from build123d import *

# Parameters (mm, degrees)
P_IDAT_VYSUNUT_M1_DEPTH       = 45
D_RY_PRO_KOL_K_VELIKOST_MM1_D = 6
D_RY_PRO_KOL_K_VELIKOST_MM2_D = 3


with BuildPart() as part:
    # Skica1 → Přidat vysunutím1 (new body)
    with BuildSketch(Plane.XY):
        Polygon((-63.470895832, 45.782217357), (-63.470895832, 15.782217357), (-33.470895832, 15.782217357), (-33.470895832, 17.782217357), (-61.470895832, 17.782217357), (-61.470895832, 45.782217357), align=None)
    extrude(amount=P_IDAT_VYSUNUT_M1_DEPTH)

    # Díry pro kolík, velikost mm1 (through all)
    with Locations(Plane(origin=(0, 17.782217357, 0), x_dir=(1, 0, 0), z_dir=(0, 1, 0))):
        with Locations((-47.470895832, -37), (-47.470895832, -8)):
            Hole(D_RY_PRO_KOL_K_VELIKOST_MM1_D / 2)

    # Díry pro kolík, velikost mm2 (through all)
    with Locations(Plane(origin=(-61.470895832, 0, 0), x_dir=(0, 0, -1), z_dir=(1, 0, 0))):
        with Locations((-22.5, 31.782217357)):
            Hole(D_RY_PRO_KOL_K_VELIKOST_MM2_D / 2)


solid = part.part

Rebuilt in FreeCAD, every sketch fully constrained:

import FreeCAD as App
import Part
import Sketcher
Q = App.Units.Quantity

doc = App.newDocument("Part")
params = doc.addObject("Spreadsheet::Sheet", "Params")
for row, (alias, value) in enumerate([
    ("sketch1_width", "30 mm"),
    ("sketch1_width2", "28 mm"),
    ("pad1_length", "45 mm"),
    ("sketch2_diameter", "6 mm"),
    ("hole_diameter", "6 mm"),
    ("sketch3_diameter", "3 mm"),
    ("hole2_diameter", "3 mm"),
], start=1):
    params.set(f"A{row}", alias)
    params.set(f"B{row}", "=" + value)
    params.setAlias(f"B{row}", alias)

body = doc.addObject("PartDesign::Body", "Body")

# Sketch on XY plane
sketch1 = body.newObject("Sketcher::SketchObject", "Sketch")
sketch1.AttachmentSupport = (doc.getObject("XY_Plane"), [""])
sketch1.MapMode = "FlatFace"
sketch1.addGeometry(Part.LineSegment(App.Vector(-63.470896, 45.782217, 0), App.Vector(-63.470896, 15.782217, 0)), False)
sketch1.addGeometry(Part.LineSegment(App.Vector(-63.470896, 15.782217, 0), App.Vector(-33.470896, 15.782217, 0)), False)
sketch1.addGeometry(Part.LineSegment(App.Vector(-33.470896, 15.782217, 0), App.Vector(-33.470896, 17.782217, 0)), False)
sketch1.addGeometry(Part.LineSegment(App.Vector(-33.470896, 17.782217, 0), App.Vector(-61.470896, 17.782217, 0)), False)
sketch1.addGeometry(Part.LineSegment(App.Vector(-61.470896, 17.782217, 0), App.Vector(-61.470896, 45.782217, 0)), False)
sketch1.addGeometry(Part.LineSegment(App.Vector(-61.470896, 45.782217, 0), App.Vector(-63.470896, 45.782217, 0)), False)
sketch1.addConstraint(Sketcher.Constraint("Coincident", 0, 2, 1, 1))
sketch1.addConstraint(Sketcher.Constraint("Coincident", 1, 2, 2, 1))
sketch1.addConstraint(Sketcher.Constraint("Coincident", 2, 2, 3, 1))
sketch1.addConstraint(Sketcher.Constraint("Coincident", 3, 2, 4, 1))
sketch1.addConstraint(Sketcher.Constraint("Coincident", 4, 2, 5, 1))
sketch1.addConstraint(Sketcher.Constraint("Coincident", 5, 2, 0, 1))
sketch1.addConstraint(Sketcher.Constraint("Vertical", 0))
sketch1.addConstraint(Sketcher.Constraint("Horizontal", 1))
sketch1.addConstraint(Sketcher.Constraint("Vertical", 2))
sketch1.addConstraint(Sketcher.Constraint("Horizontal", 3))
sketch1.addConstraint(Sketcher.Constraint("Vertical", 4))
sketch1.addConstraint(Sketcher.Constraint("Horizontal", 5))
sketch1.addConstraint(Sketcher.Constraint("Equal", 1, 0))
sketch1.addConstraint(Sketcher.Constraint("Equal", 5, 2))
sketch1.addConstraint(Sketcher.Constraint("DistanceX", 1, 1, 1, 2, Q("30 mm")))
sketch1.addConstraint(Sketcher.Constraint("DistanceX", 3, 2, 3, 1, Q("28 mm")))
sketch1.addConstraint(Sketcher.Constraint("DistanceX", 0, 2, -1, 1, Q("63.470896 mm")))
sketch1.addConstraint(Sketcher.Constraint("DistanceY", -1, 1, 0, 2, Q("15.782217 mm")))
sketch1.setExpression("Constraints[14]", "Params.sketch1_width")
sketch1.setExpression("Constraints[15]", "Params.sketch1_width2")
pad1 = body.newObject("PartDesign::Pad", "Pad")
pad1.Profile = sketch1
pad1.setExpression("Length", "Params.pad1_length")

# Sketch on XZ plane
sketch2 = body.newObject("Sketcher::SketchObject", "Sketch001")
sketch2.AttachmentSupport = (doc.getObject("XZ_Plane"), [""])
sketch2.MapMode = "FlatFace"
sketch2.AttachmentOffset = App.Placement(App.Vector(0, 0, -17.782217), App.Rotation())
sketch2.addGeometry(Part.Circle(App.Vector(-47.470896, 37, 0), App.Vector(0, 0, 1), 3), False)
sketch2.addGeometry(Part.Circle(App.Vector(-47.470896, 8, 0), App.Vector(0, 0, 1), 3), False)
sketch2.addConstraint(Sketcher.Constraint("Equal", 0, 1))
sketch2.addConstraint(Sketcher.Constraint("Vertical", 0, 3, 1, 3))
sketch2.addConstraint(Sketcher.Constraint("Diameter", 0, Q("6 mm")))
sketch2.addConstraint(Sketcher.Constraint("DistanceY", -1, 1, 0, 3, Q("37 mm")))
sketch2.addConstraint(Sketcher.Constraint("DistanceY", -1, 1, 1, 3, Q("8 mm")))
sketch2.addConstraint(Sketcher.Constraint("DistanceX", 0, 3, -1, 1, Q("47.470896 mm")))
sketch2.setExpression("Constraints[2]", "Params.sketch2_diameter")
doc.recompute()
hole = body.newObject("PartDesign::Hole", "Hole")
hole.Profile = sketch2
hole.ThreadType = "None"
hole.setExpression("Diameter", "Params.hole_diameter")
hole.DepthType = "ThroughAll"
hole.Reversed = True

# Sketch on YZ plane
sketch3 = body.newObject("Sketcher::SketchObject", "Sketch002")
sketch3.AttachmentSupport = (doc.getObject("YZ_Plane"), [""])
sketch3.MapMode = "FlatFace"
sketch3.AttachmentOffset = App.Placement(App.Vector(0, 0, -61.470896), App.Rotation())
sketch3.addGeometry(Part.Circle(App.Vector(31.782217, 22.5, 0), App.Vector(0, 0, 1), 1.5), False)
sketch3.addConstraint(Sketcher.Constraint("Diameter", 0, Q("3 mm")))
sketch3.addConstraint(Sketcher.Constraint("DistanceY", -1, 1, 0, 3, Q("22.5 mm")))
sketch3.addConstraint(Sketcher.Constraint("DistanceX", -1, 1, 0, 3, Q("31.782217 mm")))
sketch3.setExpression("Constraints[0]", "Params.sketch3_diameter")
doc.recompute()
hole2 = body.newObject("PartDesign::Hole", "Hole001")
hole2.Profile = sketch3
hole2.ThreadType = "None"
hole2.setExpression("Diameter", "Params.hole2_diameter")
hole2.DepthType = "ThroughAll"

doc.recompute()
